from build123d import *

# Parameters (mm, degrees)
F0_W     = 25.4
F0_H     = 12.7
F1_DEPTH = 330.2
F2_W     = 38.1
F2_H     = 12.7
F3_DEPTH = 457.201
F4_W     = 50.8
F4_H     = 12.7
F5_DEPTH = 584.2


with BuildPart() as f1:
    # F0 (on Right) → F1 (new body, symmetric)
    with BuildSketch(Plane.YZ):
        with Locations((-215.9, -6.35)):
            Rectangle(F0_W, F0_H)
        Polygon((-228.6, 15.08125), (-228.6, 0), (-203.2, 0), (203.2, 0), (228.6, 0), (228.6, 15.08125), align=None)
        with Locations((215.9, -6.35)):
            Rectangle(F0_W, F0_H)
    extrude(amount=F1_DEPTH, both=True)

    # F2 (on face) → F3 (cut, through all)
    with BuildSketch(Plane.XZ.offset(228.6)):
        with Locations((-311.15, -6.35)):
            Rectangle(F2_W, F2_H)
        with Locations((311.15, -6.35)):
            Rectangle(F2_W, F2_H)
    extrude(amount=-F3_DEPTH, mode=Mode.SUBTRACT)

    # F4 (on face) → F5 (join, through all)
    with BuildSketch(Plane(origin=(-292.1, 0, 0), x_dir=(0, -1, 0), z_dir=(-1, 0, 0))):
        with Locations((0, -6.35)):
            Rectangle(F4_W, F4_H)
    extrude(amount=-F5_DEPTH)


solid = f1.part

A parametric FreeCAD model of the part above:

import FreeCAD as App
import Part
import Sketcher
from FreeCAD import Vector
Q = App.Units.Quantity


def add_polygon(sketch, points):
    """Adds a closed chain of lines whose ends are joined by coincident constraints."""
    first, n = sketch.GeometryCount, len(points)
    for a, b in zip(points, points[1:] + points[:1]):
        sketch.addGeometry(Part.LineSegment(App.Vector(*a, 0), App.Vector(*b, 0)), False)
    for i in range(n):
        sketch.addConstraint(Sketcher.Constraint("Coincident", first + i, 2, first + (i + 1) % n, 1))

doc = App.newDocument("Part")
params = doc.addObject("Spreadsheet::Sheet", "Params")
for row, (alias, value) in enumerate([
    ("sketch1_width", "1 in"),
    ("sketch1_width2", "16 in"),
    ("sketch1_height", "0.5 in"),
    ("sketch1_height2", "1.09375 in"),
    ("pad1_length", "26 in"),
    ("sketch2_width", "1.5 in"),
    ("sketch2_height", "0.5 in"),
    ("sketch3_width", "2 in"),
    ("sketch3_height", "0.5 in"),
    ("pad2_length", "23 in"),
], start=1):
    params.set(f"A{row}", alias)
    params.set(f"B{row}", "=" + value)
    params.setAlias(f"B{row}", alias)

body = doc.addObject("PartDesign::Body", "Body")

sketch1 = doc.addObject("Sketcher::SketchObject", "Sketch")
body.addObject(sketch1)
sketch1.AttachmentSupport = (doc.YZ_Plane, [""])
sketch1.MapMode = "FlatFace"
add_polygon(sketch1, [(-229, -13), (-203, -13), (-203, 0), (203, 0), (203, -13), (229, -13), (229, 15), (-229, 15)])
sketch1.addConstraint(Sketcher.Constraint("Horizontal", 0))
sketch1.addConstraint(Sketcher.Constraint("Vertical", 1))
sketch1.addConstraint(Sketcher.Constraint("Horizontal", 2))
sketch1.addConstraint(Sketcher.Constraint("Vertical", 3))
sketch1.addConstraint(Sketcher.Constraint("Horizontal", 4))
sketch1.addConstraint(Sketcher.Constraint("Vertical", 5))
sketch1.addConstraint(Sketcher.Constraint("Horizontal", 6))
sketch1.addConstraint(Sketcher.Constraint("Vertical", 7))
sketch1.addConstraint(Sketcher.Constraint("Symmetric", 1, 2, 2, 2, -1, 1))
sketch1.addConstraint(Sketcher.Constraint("Symmetric", 4, 2, 7, 2, -2))
sketch1.addConstraint(Sketcher.Constraint("DistanceX", 0, 1, 0, 2, Q("1 in")))
sketch1.addConstraint(Sketcher.Constraint("DistanceX", 2, 1, 2, 2, Q("16 in")))
sketch1.addConstraint(Sketcher.Constraint("DistanceY", 1, 1, 1, 2, Q("0.5 in")))
sketch1.addConstraint(Sketcher.Constraint("DistanceY", 5, 1, 5, 2, Q("1.09375 in")))
sketch1.setExpression("Constraints[18]", "Params.sketch1_width")
sketch1.setExpression("Constraints[19]", "Params.sketch1_width2")
sketch1.setExpression("Constraints[20]", "Params.sketch1_height")
sketch1.setExpression("Constraints[21]", "Params.sketch1_height2")
pad1 = doc.addObject("PartDesign::Pad", "Pad")
body.addObject(pad1)
pad1.Profile = sketch1
pad1.setExpression("Length", "Params.pad1_length")
pad1.Midplane = True

sketch2 = doc.addObject("Sketcher::SketchObject", "Sketch001")
body.addObject(sketch2)
sketch2.AttachmentSupport = (doc.XZ_Plane, [""])
sketch2.MapMode = "FlatFace"
sketch2.AttachmentOffset = App.Placement(Vector(0, 0, 9 * 25.4), App.Rotation())
add_polygon(sketch2, [(-330, 0), (-330, -13), (-292, -13), (-292, 0)])
add_polygon(sketch2, [(292, 0), (292, -13), (330, -13), (330, 0)])
sketch2.addConstraint(Sketcher.Constraint("Vertical", 0))
sketch2.addConstraint(Sketcher.Constraint("Horizontal", 1))
sketch2.addConstraint(Sketcher.Constraint("Vertical", 2))
sketch2.addConstraint(Sketcher.Constraint("Horizontal", 3))
sketch2.addConstraint(Sketcher.Constraint("Vertical", 4))
sketch2.addConstraint(Sketcher.Constraint("Horizontal", 5))
sketch2.addConstraint(Sketcher.Constraint("Vertical", 6))
sketch2.addConstraint(Sketcher.Constraint("Horizontal", 7))
sketch2.addConstraint(Sketcher.Constraint("Symmetric", 3, 2, 6, 2, -1, 1))
sketch2.addConstraint(Sketcher.Constraint("Symmetric", 1, 2, 4, 2, -2))
sketch2.addConstraint(Sketcher.Constraint("PointOnObject", 2, 2, -1))
sketch2.addConstraint(Sketcher.Constraint("DistanceX", 1, 1, 1, 2, Q("1.5 in")))
sketch2.addConstraint(Sketcher.Constraint("DistanceY", 0, 2, 0, 1, Q("0.5 in")))
sketch2.addConstraint(Sketcher.Constraint("DistanceX", 0, 2, -1, 1, Q("13 in")))
sketch2.setExpression("Constraints[19]", "Params.sketch2_width")
sketch2.setExpression("Constraints[20]", "Params.sketch2_height")
pocket1 = doc.addObject("PartDesign::Pocket", "Pocket")
body.addObject(pocket1)
pocket1.Profile = sketch2
pocket1.Type = "ThroughAll"

sketch3 = doc.addObject("Sketcher::SketchObject", "Sketch002")
body.addObject(sketch3)
sketch3.AttachmentSupport = (doc.YZ_Plane, [""])
sketch3.MapMode = "FlatFace"
sketch3.AttachmentOffset = App.Placement(Vector(0, 0, -11.5 * 25.4), App.Rotation())
add_polygon(sketch3, [(25, 0), (25, -13), (-25, -13), (-25, 0)])
sketch3.addConstraint(Sketcher.Constraint("Vertical", 0))
sketch3.addConstraint(Sketcher.Constraint("Horizontal", 1))
sketch3.addConstraint(Sketcher.Constraint("Vertical", 2))
sketch3.addConstraint(Sketcher.Constraint("Horizontal", 3))
sketch3.addConstraint(Sketcher.Constraint("Symmetric", 2, 2, 3, 2, -1, 1))
sketch3.addConstraint(Sketcher.Constraint("DistanceX", 1, 2, 1, 1, Q("2 in")))
sketch3.addConstraint(Sketcher.Constraint("DistanceY", 0, 2, 0, 1, Q("0.5 in")))
sketch3.setExpression("Constraints[9]", "Params.sketch3_width")
sketch3.setExpression("Constraints[10]", "Params.sketch3_height")
pad2 = doc.addObject("PartDesign::Pad", "Pad001")
body.addObject(pad2)
pad2.Profile = sketch3
pad2.setExpression("Length", "Params.pad2_length")

doc.recompute()
